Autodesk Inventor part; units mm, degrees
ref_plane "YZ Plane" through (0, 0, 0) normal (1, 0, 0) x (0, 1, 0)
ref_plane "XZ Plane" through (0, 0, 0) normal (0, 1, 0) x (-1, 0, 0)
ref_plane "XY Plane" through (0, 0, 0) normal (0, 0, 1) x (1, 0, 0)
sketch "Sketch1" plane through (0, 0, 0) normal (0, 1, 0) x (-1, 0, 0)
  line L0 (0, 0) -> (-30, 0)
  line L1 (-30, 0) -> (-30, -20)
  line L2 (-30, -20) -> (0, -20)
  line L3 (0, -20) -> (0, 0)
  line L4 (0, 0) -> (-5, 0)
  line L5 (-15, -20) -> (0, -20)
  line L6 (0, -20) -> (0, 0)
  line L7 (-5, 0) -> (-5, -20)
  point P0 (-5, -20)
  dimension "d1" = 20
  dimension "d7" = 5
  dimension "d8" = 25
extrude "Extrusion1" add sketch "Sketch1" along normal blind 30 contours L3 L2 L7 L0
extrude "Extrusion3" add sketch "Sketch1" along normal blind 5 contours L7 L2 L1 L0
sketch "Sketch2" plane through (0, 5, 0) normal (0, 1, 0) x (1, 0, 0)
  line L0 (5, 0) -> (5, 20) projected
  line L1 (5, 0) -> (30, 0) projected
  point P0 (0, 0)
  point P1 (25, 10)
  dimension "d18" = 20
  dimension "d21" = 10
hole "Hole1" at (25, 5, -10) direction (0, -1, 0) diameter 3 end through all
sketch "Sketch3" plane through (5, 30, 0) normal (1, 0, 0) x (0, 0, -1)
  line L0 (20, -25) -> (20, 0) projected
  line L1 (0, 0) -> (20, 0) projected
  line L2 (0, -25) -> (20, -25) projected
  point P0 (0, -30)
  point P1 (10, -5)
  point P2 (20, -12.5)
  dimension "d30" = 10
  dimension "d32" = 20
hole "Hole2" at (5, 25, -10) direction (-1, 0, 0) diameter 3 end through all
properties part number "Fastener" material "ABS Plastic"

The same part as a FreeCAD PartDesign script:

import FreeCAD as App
import Part
import Sketcher
Q = App.Units.Quantity

doc = App.newDocument("Part")
body = doc.addObject("PartDesign::Body", "Body")

sketch1 = body.newObject("Sketcher::SketchObject", "Sketch")
sketch1.AttachmentSupport = (doc.getObject("XZ_Plane"), [""])
sketch1.MapMode = "FlatFace"
sketch1.addGeometry([
    Part.LineSegment(App.Vector(0, -20, 0), App.Vector(0, 0, 0)),
    Part.LineSegment(App.Vector(0, 0, 0), App.Vector(5, 0, 0)),
    Part.LineSegment(App.Vector(5, 0, 0), App.Vector(5, -20, 0)),
    Part.LineSegment(App.Vector(5, -20, 0), App.Vector(0, -20, 0)),
], False)
sketch1.addConstraint([
    Sketcher.Constraint("Coincident", 0, 2, 1, 1),
    Sketcher.Constraint("Coincident", 1, 2, 2, 1),
    Sketcher.Constraint("Coincident", 2, 2, 3, 1),
    Sketcher.Constraint("Coincident", 3, 2, 0, 1),
    Sketcher.Constraint("Vertical", 0),
    Sketcher.Constraint("Horizontal", 1),
    Sketcher.Constraint("Vertical", 2),
    Sketcher.Constraint("Horizontal", 3),
    Sketcher.Constraint("Coincident", 0, 2, -1, 1),
    Sketcher.Constraint("DistanceX", 1, 1, 1, 2, Q("5 mm")),
    Sketcher.Constraint("DistanceY", 0, 1, 0, 2, Q("20 mm")),
])
pad1 = body.newObject("PartDesign::Pad", "Pad")
pad1.Profile = sketch1
pad1.Length = 30
pad1.Reversed = True

sketch2 = body.newObject("Sketcher::SketchObject", "Sketch001")
sketch2.AttachmentSupport = (doc.getObject("XZ_Plane"), [""])
sketch2.MapMode = "FlatFace"
sketch2.addGeometry([
    Part.LineSegment(App.Vector(5, -20, 0), App.Vector(5, 0, 0)),
    Part.LineSegment(App.Vector(5, 0, 0), App.Vector(30, 0, 0)),
    Part.LineSegment(App.Vector(30, 0, 0), App.Vector(30, -20, 0)),
    Part.LineSegment(App.Vector(30, -20, 0), App.Vector(5, -20, 0)),
], False)
sketch2.addConstraint([
    Sketcher.Constraint("Coincident", 0, 2, 1, 1),
    Sketcher.Constraint("Coincident", 1, 2, 2, 1),
    Sketcher.Constraint("Coincident", 2, 2, 3, 1),
    Sketcher.Constraint("Coincident", 3, 2, 0, 1),
    Sketcher.Constraint("Vertical", 0),
    Sketcher.Constraint("Horizontal", 1),
    Sketcher.Constraint("Vertical", 2),
    Sketcher.Constraint("Horizontal", 3),
    Sketcher.Constraint("PointOnObject", 0, 2, -1),
    Sketcher.Constraint("DistanceX", 1, 1, 1, 2, Q("25 mm")),
    Sketcher.Constraint("DistanceY", 0, 1, 0, 2, Q("20 mm")),
    Sketcher.Constraint("DistanceX", -1, 1, 0, 2, Q("5 mm")),
])
pad2 = body.newObject("PartDesign::Pad", "Pad001")
pad2.Profile = sketch2
pad2.Length = 5
pad2.Reversed = True

sketch3 = body.newObject("Sketcher::SketchObject", "Sketch002")
sketch3.AttachmentSupport = (doc.getObject("XZ_Plane"), [""])
sketch3.MapMode = "FlatFace"
sketch3.AttachmentOffset = App.Placement(App.Vector(0, 0, -5), App.Rotation())
sketch3.addGeometry(Part.Circle(App.Vector(25, -10, 0), App.Vector(0, 0, 1), 1.5), False)
sketch3.addConstraint([
    Sketcher.Constraint("Diameter", 0, Q("3 mm")),
    Sketcher.Constraint("DistanceX", -1, 1, 0, 3, Q("25 mm")),
    Sketcher.Constraint("DistanceY", 0, 3, -1, 1, Q("10 mm")),
])
doc.recompute()
hole = body.newObject("PartDesign::Hole", "Hole")
hole.Profile = sketch3
hole.ThreadType = "None"
hole.Diameter = 3
hole.DepthType = "ThroughAll"
hole.Reversed = True

sketch4 = body.newObject("Sketcher::SketchObject", "Sketch003")
sketch4.AttachmentSupport = (doc.getObject("YZ_Plane"), [""])
sketch4.MapMode = "FlatFace"
sketch4.AttachmentOffset = App.Placement(App.Vector(0, 0, 5), App.Rotation())
sketch4.addGeometry(Part.Circle(App.Vector(25, -10, 0), App.Vector(0, 0, 1), 1.5), False)
sketch4.addConstraint([
    Sketcher.Constraint("Diameter", 0, Q("3 mm")),
    Sketcher.Constraint("DistanceX", -1, 1, 0, 3, Q("25 mm")),
    Sketcher.Constraint("DistanceY", 0, 3, -1, 1, Q("10 mm")),
])
doc.recompute()
hole2 = body.newObject("PartDesign::Hole", "Hole001")
hole2.Profile = sketch4
hole2.ThreadType = "None"
hole2.Diameter = 3
hole2.DepthType = "ThroughAll"

doc.recompute()
